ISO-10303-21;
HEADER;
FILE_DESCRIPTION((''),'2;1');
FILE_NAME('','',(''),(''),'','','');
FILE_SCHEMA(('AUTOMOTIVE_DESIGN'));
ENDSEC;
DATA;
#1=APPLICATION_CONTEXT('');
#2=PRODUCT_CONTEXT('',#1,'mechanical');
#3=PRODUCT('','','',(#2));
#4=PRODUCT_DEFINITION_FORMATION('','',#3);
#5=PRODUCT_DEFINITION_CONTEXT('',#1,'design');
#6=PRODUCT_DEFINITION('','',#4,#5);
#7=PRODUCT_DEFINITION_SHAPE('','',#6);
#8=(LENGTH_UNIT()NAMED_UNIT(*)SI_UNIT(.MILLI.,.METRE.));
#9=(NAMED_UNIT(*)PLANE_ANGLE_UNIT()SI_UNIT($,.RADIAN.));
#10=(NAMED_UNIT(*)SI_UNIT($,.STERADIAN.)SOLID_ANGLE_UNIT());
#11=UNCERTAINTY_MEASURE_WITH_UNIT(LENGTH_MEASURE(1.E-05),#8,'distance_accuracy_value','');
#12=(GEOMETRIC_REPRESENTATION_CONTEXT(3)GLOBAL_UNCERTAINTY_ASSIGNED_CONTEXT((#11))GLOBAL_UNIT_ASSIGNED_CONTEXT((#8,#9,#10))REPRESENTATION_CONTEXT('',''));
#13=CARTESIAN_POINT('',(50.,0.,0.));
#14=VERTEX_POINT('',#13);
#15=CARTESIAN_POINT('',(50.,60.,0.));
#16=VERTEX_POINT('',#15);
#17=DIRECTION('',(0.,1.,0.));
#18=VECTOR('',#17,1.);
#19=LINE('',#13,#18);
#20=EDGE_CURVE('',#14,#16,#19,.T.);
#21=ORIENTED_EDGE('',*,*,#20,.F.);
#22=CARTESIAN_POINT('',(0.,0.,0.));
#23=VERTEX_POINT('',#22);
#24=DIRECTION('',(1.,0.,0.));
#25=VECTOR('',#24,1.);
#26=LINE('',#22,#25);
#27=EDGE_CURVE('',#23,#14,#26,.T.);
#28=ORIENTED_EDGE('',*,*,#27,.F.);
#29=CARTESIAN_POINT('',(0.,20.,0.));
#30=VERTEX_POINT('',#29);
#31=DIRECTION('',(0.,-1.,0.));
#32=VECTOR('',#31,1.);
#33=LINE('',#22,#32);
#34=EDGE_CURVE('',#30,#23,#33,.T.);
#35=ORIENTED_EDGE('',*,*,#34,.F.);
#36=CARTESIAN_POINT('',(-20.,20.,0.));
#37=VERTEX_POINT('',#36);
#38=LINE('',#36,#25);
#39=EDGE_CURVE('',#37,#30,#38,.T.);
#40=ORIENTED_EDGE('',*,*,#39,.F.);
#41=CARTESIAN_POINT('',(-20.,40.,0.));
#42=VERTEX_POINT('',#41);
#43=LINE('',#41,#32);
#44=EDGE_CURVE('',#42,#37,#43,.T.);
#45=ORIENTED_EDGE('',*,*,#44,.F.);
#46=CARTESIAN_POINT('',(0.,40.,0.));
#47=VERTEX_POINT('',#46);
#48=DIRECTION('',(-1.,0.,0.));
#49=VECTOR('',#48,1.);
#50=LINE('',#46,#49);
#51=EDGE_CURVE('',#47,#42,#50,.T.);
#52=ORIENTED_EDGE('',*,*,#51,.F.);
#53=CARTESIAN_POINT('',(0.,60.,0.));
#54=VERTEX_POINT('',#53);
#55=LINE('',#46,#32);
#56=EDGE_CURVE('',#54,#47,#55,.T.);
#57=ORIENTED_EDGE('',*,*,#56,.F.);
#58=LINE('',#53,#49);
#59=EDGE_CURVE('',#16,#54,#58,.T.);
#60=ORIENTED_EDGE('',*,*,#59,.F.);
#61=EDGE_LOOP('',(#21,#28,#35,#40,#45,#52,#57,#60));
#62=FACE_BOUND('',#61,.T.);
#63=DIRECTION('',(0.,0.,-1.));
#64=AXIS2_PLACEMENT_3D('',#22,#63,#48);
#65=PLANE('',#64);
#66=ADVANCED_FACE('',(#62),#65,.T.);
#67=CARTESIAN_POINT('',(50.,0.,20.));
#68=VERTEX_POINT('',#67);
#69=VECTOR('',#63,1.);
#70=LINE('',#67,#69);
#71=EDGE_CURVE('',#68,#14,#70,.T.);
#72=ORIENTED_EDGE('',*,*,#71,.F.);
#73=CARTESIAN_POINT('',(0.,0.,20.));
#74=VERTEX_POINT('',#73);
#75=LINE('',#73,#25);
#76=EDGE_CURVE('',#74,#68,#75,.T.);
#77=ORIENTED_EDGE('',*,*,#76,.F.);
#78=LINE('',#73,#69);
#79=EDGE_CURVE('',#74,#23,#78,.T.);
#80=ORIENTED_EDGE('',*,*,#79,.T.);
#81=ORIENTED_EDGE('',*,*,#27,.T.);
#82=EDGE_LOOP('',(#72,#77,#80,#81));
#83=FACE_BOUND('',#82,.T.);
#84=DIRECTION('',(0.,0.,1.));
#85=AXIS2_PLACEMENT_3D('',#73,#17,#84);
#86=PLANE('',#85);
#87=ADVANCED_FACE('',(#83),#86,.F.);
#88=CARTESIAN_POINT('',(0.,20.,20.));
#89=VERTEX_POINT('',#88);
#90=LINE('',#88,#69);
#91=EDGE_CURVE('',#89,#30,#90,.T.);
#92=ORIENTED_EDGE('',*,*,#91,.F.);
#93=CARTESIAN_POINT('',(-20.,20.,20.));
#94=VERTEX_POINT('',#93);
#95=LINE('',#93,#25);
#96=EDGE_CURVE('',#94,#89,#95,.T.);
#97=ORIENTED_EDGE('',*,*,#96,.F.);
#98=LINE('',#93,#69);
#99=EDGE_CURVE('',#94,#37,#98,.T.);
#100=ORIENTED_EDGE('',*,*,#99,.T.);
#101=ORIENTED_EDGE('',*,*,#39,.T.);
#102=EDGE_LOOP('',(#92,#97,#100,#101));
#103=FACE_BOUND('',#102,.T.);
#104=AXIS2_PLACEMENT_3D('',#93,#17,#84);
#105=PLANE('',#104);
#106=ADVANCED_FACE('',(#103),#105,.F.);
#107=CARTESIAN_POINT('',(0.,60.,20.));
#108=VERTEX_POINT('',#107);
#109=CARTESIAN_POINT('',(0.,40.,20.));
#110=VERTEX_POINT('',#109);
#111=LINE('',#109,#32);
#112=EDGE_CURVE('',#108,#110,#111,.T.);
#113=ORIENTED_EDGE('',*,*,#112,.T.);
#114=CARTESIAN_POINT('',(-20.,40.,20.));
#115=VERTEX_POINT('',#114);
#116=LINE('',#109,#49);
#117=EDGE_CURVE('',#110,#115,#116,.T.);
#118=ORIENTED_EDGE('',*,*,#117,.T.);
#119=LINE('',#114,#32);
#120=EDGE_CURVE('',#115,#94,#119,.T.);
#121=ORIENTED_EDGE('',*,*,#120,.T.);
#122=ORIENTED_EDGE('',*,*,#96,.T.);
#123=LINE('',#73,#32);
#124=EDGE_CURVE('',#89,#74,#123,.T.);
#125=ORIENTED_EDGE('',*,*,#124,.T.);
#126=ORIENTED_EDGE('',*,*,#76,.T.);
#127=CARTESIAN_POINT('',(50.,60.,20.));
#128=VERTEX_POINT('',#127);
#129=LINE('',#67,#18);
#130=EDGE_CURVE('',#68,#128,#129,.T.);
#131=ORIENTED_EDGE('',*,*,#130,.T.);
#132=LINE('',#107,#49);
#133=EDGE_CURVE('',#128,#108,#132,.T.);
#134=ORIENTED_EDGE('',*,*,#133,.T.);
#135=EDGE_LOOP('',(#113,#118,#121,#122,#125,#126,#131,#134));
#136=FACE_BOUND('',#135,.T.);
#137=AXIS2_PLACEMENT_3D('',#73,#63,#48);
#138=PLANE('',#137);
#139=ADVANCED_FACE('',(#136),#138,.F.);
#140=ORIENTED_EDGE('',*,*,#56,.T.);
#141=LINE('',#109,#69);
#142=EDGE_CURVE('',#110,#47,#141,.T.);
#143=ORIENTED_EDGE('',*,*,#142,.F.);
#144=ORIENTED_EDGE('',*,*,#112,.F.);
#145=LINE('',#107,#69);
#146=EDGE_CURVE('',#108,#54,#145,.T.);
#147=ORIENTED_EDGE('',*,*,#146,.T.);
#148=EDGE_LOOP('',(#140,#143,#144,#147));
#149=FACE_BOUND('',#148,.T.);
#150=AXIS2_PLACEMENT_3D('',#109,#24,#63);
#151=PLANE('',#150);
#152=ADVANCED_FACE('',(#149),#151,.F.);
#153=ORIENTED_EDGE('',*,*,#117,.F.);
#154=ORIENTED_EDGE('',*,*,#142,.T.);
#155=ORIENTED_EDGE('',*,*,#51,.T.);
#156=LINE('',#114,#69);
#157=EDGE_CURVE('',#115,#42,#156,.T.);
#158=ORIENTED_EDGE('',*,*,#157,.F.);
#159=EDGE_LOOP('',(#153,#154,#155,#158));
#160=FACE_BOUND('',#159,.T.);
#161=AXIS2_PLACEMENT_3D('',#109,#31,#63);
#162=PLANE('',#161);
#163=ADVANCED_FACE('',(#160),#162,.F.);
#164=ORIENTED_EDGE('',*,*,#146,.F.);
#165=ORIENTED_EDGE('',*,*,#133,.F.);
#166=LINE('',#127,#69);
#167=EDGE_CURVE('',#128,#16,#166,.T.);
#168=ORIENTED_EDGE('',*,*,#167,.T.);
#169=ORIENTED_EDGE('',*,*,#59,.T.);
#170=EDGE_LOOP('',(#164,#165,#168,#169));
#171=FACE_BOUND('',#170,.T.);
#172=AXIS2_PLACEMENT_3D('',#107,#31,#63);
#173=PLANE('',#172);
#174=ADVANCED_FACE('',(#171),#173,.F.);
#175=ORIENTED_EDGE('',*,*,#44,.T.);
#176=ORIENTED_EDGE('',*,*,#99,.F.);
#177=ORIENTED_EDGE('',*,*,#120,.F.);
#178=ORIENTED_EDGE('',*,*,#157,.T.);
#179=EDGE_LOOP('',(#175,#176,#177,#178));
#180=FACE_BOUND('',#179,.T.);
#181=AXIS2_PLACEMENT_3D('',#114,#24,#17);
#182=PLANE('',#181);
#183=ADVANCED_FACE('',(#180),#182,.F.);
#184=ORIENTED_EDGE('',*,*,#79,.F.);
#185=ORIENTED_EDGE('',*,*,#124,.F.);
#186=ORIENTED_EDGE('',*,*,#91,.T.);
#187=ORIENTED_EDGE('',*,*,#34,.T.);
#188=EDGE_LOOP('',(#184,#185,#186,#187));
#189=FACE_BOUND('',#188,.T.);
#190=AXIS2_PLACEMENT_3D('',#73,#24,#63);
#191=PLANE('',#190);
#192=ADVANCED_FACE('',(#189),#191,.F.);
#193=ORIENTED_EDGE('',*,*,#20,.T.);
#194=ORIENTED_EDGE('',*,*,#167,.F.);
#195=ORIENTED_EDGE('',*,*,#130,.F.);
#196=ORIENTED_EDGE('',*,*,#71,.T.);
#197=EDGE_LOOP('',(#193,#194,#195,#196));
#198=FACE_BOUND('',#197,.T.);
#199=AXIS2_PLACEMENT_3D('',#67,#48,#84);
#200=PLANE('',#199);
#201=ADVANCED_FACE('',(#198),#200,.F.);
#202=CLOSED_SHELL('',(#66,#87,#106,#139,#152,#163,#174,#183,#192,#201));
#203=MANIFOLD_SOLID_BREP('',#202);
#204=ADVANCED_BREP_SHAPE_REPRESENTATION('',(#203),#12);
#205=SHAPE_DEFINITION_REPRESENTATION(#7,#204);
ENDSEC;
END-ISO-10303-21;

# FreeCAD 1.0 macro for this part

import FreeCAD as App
import Part
import Sketcher

V = App.Vector
Q = App.Units.Quantity

doc = App.newDocument("Part")
body = doc.addObject("PartDesign::Body", "Body")

# Sketch on XY plane
sketch1 = body.newObject("Sketcher::SketchObject", "Sketch")
sketch1.AttachmentSupport = (doc.getObject("XY_Plane"), [""])
sketch1.MapMode = "FlatFace"
sketch1.addGeometry([
    Part.LineSegment(V(0, 40, 0), V(-20, 40, 0)),  # 0
    Part.LineSegment(V(-20, 40, 0), V(-20, 20, 0)),  # 1
    Part.LineSegment(V(-20, 20, 0), V(0, 20, 0)),  # 2
    Part.LineSegment(V(0, 20, 0), V(0, 0, 0)),  # 3
    Part.LineSegment(V(0, 0, 0), V(50, 0, 0)),  # 4
    Part.LineSegment(V(50, 0, 0), V(50, 60, 0)),  # 5
    Part.LineSegment(V(50, 60, 0), V(0, 60, 0)),  # 6
    Part.LineSegment(V(0, 60, 0), V(0, 40, 0)),  # 7
], False)
sketch1.addConstraint([
    Sketcher.Constraint("Coincident", 0, 2, 1, 1),
    Sketcher.Constraint("Coincident", 1, 2, 2, 1),
    Sketcher.Constraint("Coincident", 2, 2, 3, 1),
    Sketcher.Constraint("Coincident", 3, 2, 4, 1),
    Sketcher.Constraint("Coincident", 4, 2, 5, 1),
    Sketcher.Constraint("Coincident", 5, 2, 6, 1),
    Sketcher.Constraint("Coincident", 6, 2, 7, 1),
    Sketcher.Constraint("Coincident", 7, 2, 0, 1),
    Sketcher.Constraint("Horizontal", 0),
    Sketcher.Constraint("Vertical", 1),
    Sketcher.Constraint("Horizontal", 2),
    Sketcher.Constraint("Vertical", 3),
    Sketcher.Constraint("Horizontal", 4),
    Sketcher.Constraint("Vertical", 5),
    Sketcher.Constraint("Horizontal", 6),
    Sketcher.Constraint("Vertical", 7),
    Sketcher.Constraint("Coincident", 3, 2, -1, 1),
    Sketcher.Constraint("PointOnObject", 6, 2, -2),
    Sketcher.Constraint("Equal", 2, 1),
    Sketcher.Constraint("Equal", 1, 3),
    Sketcher.Constraint("Equal", 3, 7),
    Sketcher.Constraint("DistanceX", 0, 2, 0, 1, Q("20 mm")),
    Sketcher.Constraint("DistanceX", 4, 1, 4, 2, Q("50 mm")),
])
pad1 = body.newObject("PartDesign::Pad", "Pad")
pad1.Profile = sketch1
pad1.Length = 20

doc.recompute()
